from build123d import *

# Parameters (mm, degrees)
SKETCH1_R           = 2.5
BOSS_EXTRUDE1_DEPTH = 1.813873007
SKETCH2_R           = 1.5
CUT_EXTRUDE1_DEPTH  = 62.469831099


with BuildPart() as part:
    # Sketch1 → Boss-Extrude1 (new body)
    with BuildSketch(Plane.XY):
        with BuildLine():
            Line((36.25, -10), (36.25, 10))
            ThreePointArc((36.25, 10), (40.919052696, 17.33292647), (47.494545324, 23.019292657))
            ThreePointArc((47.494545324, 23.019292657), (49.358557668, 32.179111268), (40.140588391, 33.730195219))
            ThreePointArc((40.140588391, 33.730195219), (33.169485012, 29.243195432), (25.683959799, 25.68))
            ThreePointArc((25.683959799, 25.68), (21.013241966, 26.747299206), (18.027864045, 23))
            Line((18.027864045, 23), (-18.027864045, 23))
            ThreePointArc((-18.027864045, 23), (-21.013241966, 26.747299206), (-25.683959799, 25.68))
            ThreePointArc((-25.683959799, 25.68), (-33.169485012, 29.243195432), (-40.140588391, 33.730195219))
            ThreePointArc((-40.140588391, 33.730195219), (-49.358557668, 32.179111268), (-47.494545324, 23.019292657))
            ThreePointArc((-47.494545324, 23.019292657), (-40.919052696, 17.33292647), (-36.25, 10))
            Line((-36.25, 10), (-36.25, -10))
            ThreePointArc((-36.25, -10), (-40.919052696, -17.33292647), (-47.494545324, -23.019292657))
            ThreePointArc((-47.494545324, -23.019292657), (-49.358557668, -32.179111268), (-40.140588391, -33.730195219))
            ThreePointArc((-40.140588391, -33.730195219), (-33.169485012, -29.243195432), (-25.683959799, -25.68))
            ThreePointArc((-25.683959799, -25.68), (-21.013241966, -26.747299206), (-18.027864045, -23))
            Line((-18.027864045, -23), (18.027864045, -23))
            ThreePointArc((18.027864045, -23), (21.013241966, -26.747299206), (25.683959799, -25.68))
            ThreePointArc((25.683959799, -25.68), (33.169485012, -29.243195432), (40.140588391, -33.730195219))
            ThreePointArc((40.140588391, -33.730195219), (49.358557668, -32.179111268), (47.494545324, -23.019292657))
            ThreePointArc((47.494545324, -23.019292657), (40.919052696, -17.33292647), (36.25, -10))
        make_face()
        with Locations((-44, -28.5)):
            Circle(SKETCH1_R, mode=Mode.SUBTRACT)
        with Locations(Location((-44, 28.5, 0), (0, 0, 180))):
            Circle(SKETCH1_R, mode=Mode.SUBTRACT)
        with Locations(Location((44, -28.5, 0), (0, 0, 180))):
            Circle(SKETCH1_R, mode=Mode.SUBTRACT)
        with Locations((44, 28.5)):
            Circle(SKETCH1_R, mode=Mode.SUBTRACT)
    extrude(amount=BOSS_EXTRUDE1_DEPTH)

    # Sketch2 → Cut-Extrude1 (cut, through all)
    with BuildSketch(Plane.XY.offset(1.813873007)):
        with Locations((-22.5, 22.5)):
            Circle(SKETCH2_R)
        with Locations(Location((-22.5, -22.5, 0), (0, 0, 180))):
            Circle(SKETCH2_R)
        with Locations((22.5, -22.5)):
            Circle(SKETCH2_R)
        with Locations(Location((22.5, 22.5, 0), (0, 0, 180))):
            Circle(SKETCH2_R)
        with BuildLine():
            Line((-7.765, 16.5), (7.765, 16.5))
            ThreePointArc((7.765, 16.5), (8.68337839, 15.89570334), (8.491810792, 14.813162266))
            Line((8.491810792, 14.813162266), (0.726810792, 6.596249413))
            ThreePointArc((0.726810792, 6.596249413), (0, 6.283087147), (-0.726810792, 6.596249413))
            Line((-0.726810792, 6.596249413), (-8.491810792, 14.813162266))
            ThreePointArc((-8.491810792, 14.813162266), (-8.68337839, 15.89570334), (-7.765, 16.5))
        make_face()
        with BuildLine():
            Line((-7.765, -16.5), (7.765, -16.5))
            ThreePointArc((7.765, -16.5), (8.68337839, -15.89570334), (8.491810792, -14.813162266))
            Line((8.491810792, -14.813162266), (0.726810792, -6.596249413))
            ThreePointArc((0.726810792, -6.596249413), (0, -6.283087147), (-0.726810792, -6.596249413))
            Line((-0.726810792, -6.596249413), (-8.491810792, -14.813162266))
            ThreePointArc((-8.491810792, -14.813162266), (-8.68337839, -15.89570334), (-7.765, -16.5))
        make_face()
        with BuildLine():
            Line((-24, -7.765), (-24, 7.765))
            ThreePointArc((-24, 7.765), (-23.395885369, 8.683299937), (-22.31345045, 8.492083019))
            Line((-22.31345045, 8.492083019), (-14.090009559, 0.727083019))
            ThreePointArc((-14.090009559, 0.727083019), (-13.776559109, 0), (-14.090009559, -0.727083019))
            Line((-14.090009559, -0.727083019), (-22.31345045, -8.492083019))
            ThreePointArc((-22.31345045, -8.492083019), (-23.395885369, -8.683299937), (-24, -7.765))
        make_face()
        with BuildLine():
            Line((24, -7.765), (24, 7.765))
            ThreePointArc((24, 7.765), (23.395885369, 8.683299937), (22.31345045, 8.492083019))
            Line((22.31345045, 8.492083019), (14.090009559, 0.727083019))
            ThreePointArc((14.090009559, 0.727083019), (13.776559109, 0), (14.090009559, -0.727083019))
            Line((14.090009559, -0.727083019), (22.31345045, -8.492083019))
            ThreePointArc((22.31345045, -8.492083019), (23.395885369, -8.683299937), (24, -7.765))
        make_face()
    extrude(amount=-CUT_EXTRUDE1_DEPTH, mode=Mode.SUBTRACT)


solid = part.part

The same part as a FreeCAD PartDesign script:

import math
import FreeCAD as App
import Part
import Sketcher

V = App.Vector
Q = App.Units.Quantity

doc = App.newDocument("Part")
body = doc.addObject("PartDesign::Body", "Body")

sketch1 = doc.addObject("Sketcher::SketchObject", "Sketch")
body.addObject(sketch1)
sketch1.AttachmentSupport = (doc.XY_Plane, [""])
sketch1.MapMode = "FlatFace"
sketch1.addGeometry([
    Part.LineSegment(V(36.2, -10, 0), V(36.2, 10, 0)),
    Part.ArcOfCircle(Part.Circle(V(63.6, -2.3, 0), V(0, 0, 1), 30), math.radians(123), math.radians(156)),
    Part.ArcOfCircle(Part.Circle(V(44, 28.5, 0), V(0, 0, 1), 6.5), math.radians(-57), math.radians(126)),
    Part.ArcOfCircle(Part.Circle(V(1.5, 86, 0), V(0, 0, 1), 65), math.radians(-68.2), math.radians(-53.58)),
    Part.ArcOfCircle(Part.Circle(V(22.5, 22.5, 0), V(0, 0, 1), 4.5), math.radians(45), math.radians(174)),
    Part.LineSegment(V(18, 23, 0), V(-18, 23, 0)),
    Part.ArcOfCircle(Part.Circle(V(-22.5, 22.5, 0), V(0, 0, 1), 4.5), math.radians(6), math.radians(135)),
    Part.ArcOfCircle(Part.Circle(V(-1.5, 86, 0), V(0, 0, 1), 65), math.radians(-126.42), math.radians(-111.8)),
    Part.ArcOfCircle(Part.Circle(V(-44, 28.5, 0), V(0, 0, 1), 6.5), math.radians(54), math.radians(237)),
    Part.ArcOfCircle(Part.Circle(V(-63.6, -2.3, 0), V(0, 0, 1), 30), math.radians(24), math.radians(57)),
    Part.LineSegment(V(-36.2, 10, 0), V(-36.2, -10, 0)),
    Part.ArcOfCircle(Part.Circle(V(-63.6, 2.3, 0), V(0, 0, 1), 30), math.radians(-57), math.radians(-24)),
    Part.ArcOfCircle(Part.Circle(V(-44, -28.5, 0), V(0, 0, 1), 6.5), math.radians(123), math.radians(306)),
    Part.ArcOfCircle(Part.Circle(V(-1.5, -86, 0), V(0, 0, 1), 65), math.radians(111.8), math.radians(126.42)),
    Part.ArcOfCircle(Part.Circle(V(-22.5, -22.5, 0), V(0, 0, 1), 4.5), math.radians(-135), math.radians(-6)),
    Part.LineSegment(V(-18, -23, 0), V(18, -23, 0)),
    Part.ArcOfCircle(Part.Circle(V(22.5, -22.5, 0), V(0, 0, 1), 4.5), math.radians(-174), math.radians(-45)),
    Part.ArcOfCircle(Part.Circle(V(1.5, -86, 0), V(0, 0, 1), 65), math.radians(53.58), math.radians(68.2)),
    Part.ArcOfCircle(Part.Circle(V(44, -28.5, 0), V(0, 0, 1), 6.5), math.radians(-126), math.radians(57)),
    Part.ArcOfCircle(Part.Circle(V(63.6, 2.3, 0), V(0, 0, 1), 30), math.radians(-156), math.radians(-123)),
    Part.Circle(V(-44, -28.5, 0), V(0, 0, 1), 2.5),
    Part.Circle(V(44, -28.5, 0), V(0, 0, 1), 2.5),
    Part.Circle(V(-44, 28.5, 0), V(0, 0, 1), 2.5),
    Part.Circle(V(44, 28.5, 0), V(0, 0, 1), 2.5),
], False)
sketch1.addConstraint([
    Sketcher.Constraint("Coincident", 0, 2, 1, 2),
    Sketcher.Constraint("Tangent", 1, 1, 2, 1),
    Sketcher.Constraint("Tangent", 2, 2, 3, 2),
    Sketcher.Constraint("Coincident", 3, 1, 4, 1),
    Sketcher.Constraint("Coincident", 4, 2, 5, 1),
    Sketcher.Constraint("Coincident", 5, 2, 6, 1),
    Sketcher.Constraint("Coincident", 6, 2, 7, 2),
    Sketcher.Constraint("Tangent", 7, 1, 8, 1),
    Sketcher.Constraint("Tangent", 8, 2, 9, 2),
    Sketcher.Constraint("Coincident", 9, 1, 10, 1),
    Sketcher.Constraint("Coincident", 10, 2, 11, 2),
    Sketcher.Constraint("Tangent", 11, 1, 12, 1),
    Sketcher.Constraint("Tangent", 12, 2, 13, 2),
    Sketcher.Constraint("Coincident", 13, 1, 14, 1),
    Sketcher.Constraint("Coincident", 14, 2, 15, 1),
    Sketcher.Constraint("Coincident", 15, 2, 16, 1),
    Sketcher.Constraint("Coincident", 16, 2, 17, 2),
    Sketcher.Constraint("Tangent", 17, 1, 18, 1),
    Sketcher.Constraint("Tangent", 18, 2, 19, 2),
    Sketcher.Constraint("Coincident", 19, 1, 0, 1),
    Sketcher.Constraint("Vertical", 0),
    Sketcher.Constraint("Horizontal", 5),
    Sketcher.Constraint("Vertical", 10),
    Sketcher.Constraint("Horizontal", 15),
    Sketcher.Constraint("Coincident", 20, 3, 12, 3),
    Sketcher.Constraint("Coincident", 21, 3, 18, 3),
    Sketcher.Constraint("Coincident", 22, 3, 8, 3),
    Sketcher.Constraint("Coincident", 23, 3, 2, 3),
    Sketcher.Constraint("Equal", 4, 6),
    Sketcher.Constraint("Equal", 3, 7),
    Sketcher.Constraint("Equal", 2, 8),
    Sketcher.Constraint("Equal", 1, 9),
    Sketcher.Constraint("Equal", 9, 11),
    Sketcher.Constraint("Equal", 8, 12),
    Sketcher.Constraint("Equal", 7, 13),
    Sketcher.Constraint("Equal", 6, 14),
    Sketcher.Constraint("Equal", 14, 16),
    Sketcher.Constraint("Equal", 13, 17),
    Sketcher.Constraint("Equal", 12, 18),
    Sketcher.Constraint("Equal", 11, 19),
    Sketcher.Constraint("Equal", 20, 21),
    Sketcher.Constraint("Equal", 21, 22),
    Sketcher.Constraint("Equal", 22, 23),
    Sketcher.Constraint("Symmetric", 1, 3, 11, 3, -1, 1),
    Sketcher.Constraint("Symmetric", 3, 3, 13, 3, -1, 1),
    Sketcher.Constraint("Symmetric", 4, 3, 14, 3, -1, 1),
    Sketcher.Constraint("Symmetric", 6, 3, 16, 3, -1, 1),
    Sketcher.Constraint("Symmetric", 7, 3, 17, 3, -1, 1),
    Sketcher.Constraint("Symmetric", 9, 3, 19, 3, -1, 1),
    Sketcher.Constraint("Symmetric", 4, 3, 6, 3, -2),
    Sketcher.Constraint("Symmetric", 3, 3, 7, 3, -2),
    Sketcher.Constraint("Symmetric", 1, 3, 9, 3, -2),
    Sketcher.Constraint("Horizontal", 0, 2, 9, 1),
    Sketcher.Constraint("Vertical", 5, 2, 14, 2),
    Sketcher.Constraint("Diameter", 20, Q("5 mm")),
    Sketcher.Constraint("Radius", 1, Q("30 mm")),
    Sketcher.Constraint("Radius", 3, Q("65 mm")),
    Sketcher.Constraint("Radius", 2, Q("6.5 mm")),
    Sketcher.Constraint("Radius", 4, Q("4.5 mm")),
    Sketcher.Constraint("DistanceY", 0, 1, 0, 2, Q("20 mm")),
    Sketcher.Constraint("DistanceX", -1, 1, 2, 3, Q("44 mm")),
    Sketcher.Constraint("DistanceY", -1, 1, 4, 2, Q("23 mm")),
    Sketcher.Constraint("DistanceY", 4, 3, 2, 3, Q("6 mm")),
    Sketcher.Constraint("DistanceX", 6, 3, 4, 3, Q("45 mm")),
    Sketcher.Constraint("DistanceY", 12, 3, 6, 3, Q("51 mm")),
    Sketcher.Constraint("DistanceX", -1, 1, 0, 2, Q("36.25 mm")),
    Sketcher.Constraint("DistanceY", -1, 1, 3, 1, Q("25.68 mm")),
])
pad1 = doc.addObject("PartDesign::Pad", "Pad")
body.addObject(pad1)
pad1.Profile = sketch1
pad1.Length = 1.813873

sketch2 = doc.addObject("Sketcher::SketchObject", "Sketch001")
body.addObject(sketch2)
sketch2.AttachmentSupport = (doc.XY_Plane, [""])
sketch2.MapMode = "FlatFace"
sketch2.AttachmentOffset = App.Placement(V(0, 0, 1.813873), App.Rotation())
sketch2.addGeometry([
    Part.Circle(V(-22.5, 22.5, 0), V(0, 0, 1), 1.5),
    Part.Circle(V(-22.5, -22.5, 0), V(0, 0, 1), 1.5),
    Part.Circle(V(22.5, -22.5, 0), V(0, 0, 1), 1.5),
    Part.Circle(V(22.5, 22.5, 0), V(0, 0, 1), 1.5),
    Part.LineSegment(V(7.8, 16.5, 0), V(-7.8, 16.5, 0)),
    Part.ArcOfCircle(Part.Circle(V(-7.8, 15.5, 0), V(0, 0, 1), 1), math.radians(90), math.radians(223)),
    Part.LineSegment(V(-8.5, 14.8, 0), V(-0.7, 6.6, 0)),
    Part.ArcOfCircle(Part.Circle(V(0, 7.3, 0), V(0, 0, 1), 1), math.radians(-137), math.radians(-43)),
    Part.LineSegment(V(0.7, 6.6, 0), V(8.5, 14.8, 0)),
    Part.ArcOfCircle(Part.Circle(V(7.8, 15.5, 0), V(0, 0, 1), 1), math.radians(-43), math.radians(90)),
    Part.LineSegment(V(-7.8, -16.5, 0), V(7.8, -16.5, 0)),
    Part.ArcOfCircle(Part.Circle(V(7.8, -15.5, 0), V(0, 0, 1), 1), math.radians(-90), math.radians(43)),
    Part.LineSegment(V(8.5, -14.8, 0), V(0.7, -6.6, 0)),
    Part.ArcOfCircle(Part.Circle(V(0, -7.3, 0), V(0, 0, 1), 1), math.radians(43), math.radians(137)),
    Part.LineSegment(V(-0.7, -6.6, 0), V(-8.5, -14.8, 0)),
    Part.ArcOfCircle(Part.Circle(V(-7.8, -15.5, 0), V(0, 0, 1), 1), math.radians(137), math.radians(270)),
    Part.LineSegment(V(-24, 7.8, 0), V(-24, -7.8, 0)),
    Part.ArcOfCircle(Part.Circle(V(-23, -7.8, 0), V(0, 0, 1), 1), math.radians(-180), math.radians(-47)),
    Part.LineSegment(V(-22.3, -8.5, 0), V(-14.1, -0.7, 0)),
    Part.ArcOfCircle(Part.Circle(V(-14.8, 0, 0), V(0, 0, 1), 1), math.radians(-47), math.radians(47)),
    Part.LineSegment(V(-14.1, 0.7, 0), V(-22.3, 8.5, 0)),
    Part.ArcOfCircle(Part.Circle(V(-23, 7.8, 0), V(0, 0, 1), 1), math.radians(47), math.radians(180)),
    Part.LineSegment(V(24, -7.8, 0), V(24, 7.8, 0)),
    Part.ArcOfCircle(Part.Circle(V(23, 7.8, 0), V(0, 0, 1), 1), math.radians(0), math.radians(133)),
    Part.LineSegment(V(22.3, 8.5, 0), V(14.1, 0.7, 0)),
    Part.ArcOfCircle(Part.Circle(V(14.8, 0, 0), V(0, 0, 1), 1), math.radians(133), math.radians(227)),
    Part.LineSegment(V(14.1, -0.7, 0), V(22.3, -8.5, 0)),
    Part.ArcOfCircle(Part.Circle(V(23, -7.8, 0), V(0, 0, 1), 1), math.radians(-133), math.radians(0)),
], False)
sketch2.addConstraint([
    Sketcher.Constraint("Tangent", 4, 2, 5, 1),
    Sketcher.Constraint("Tangent", 5, 2, 6, 1),
    Sketcher.Constraint("Tangent", 6, 2, 7, 1),
    Sketcher.Constraint("Tangent", 7, 2, 8, 1),
    Sketcher.Constraint("Tangent", 8, 2, 9, 1),
    Sketcher.Constraint("Tangent", 9, 2, 4, 1),
    Sketcher.Constraint("Tangent", 10, 2, 11, 1),
    Sketcher.Constraint("Tangent", 11, 2, 12, 1),
    Sketcher.Constraint("Tangent", 12, 2, 13, 1),
    Sketcher.Constraint("Tangent", 13, 2, 14, 1),
    Sketcher.Constraint("Tangent", 14, 2, 15, 1),
    Sketcher.Constraint("Tangent", 15, 2, 10, 1),
    Sketcher.Constraint("Tangent", 16, 2, 17, 1),
    Sketcher.Constraint("Tangent", 17, 2, 18, 1),
    Sketcher.Constraint("Tangent", 18, 2, 19, 1),
    Sketcher.Constraint("Tangent", 19, 2, 20, 1),
    Sketcher.Constraint("Tangent", 20, 2, 21, 1),
    Sketcher.Constraint("Tangent", 21, 2, 16, 1),
    Sketcher.Constraint("Tangent", 22, 2, 23, 1),
    Sketcher.Constraint("Tangent", 23, 2, 24, 1),
    Sketcher.Constraint("Tangent", 24, 2, 25, 1),
    Sketcher.Constraint("Tangent", 25, 2, 26, 1),
    Sketcher.Constraint("Tangent", 26, 2, 27, 1),
    Sketcher.Constraint("Tangent", 27, 2, 22, 1),
    Sketcher.Constraint("Horizontal", 4),
    Sketcher.Constraint("Horizontal", 10),
    Sketcher.Constraint("Vertical", 16),
    Sketcher.Constraint("Vertical", 22),
    Sketcher.Constraint("Equal", 0, 1),
    Sketcher.Constraint("Equal", 1, 2),
    Sketcher.Constraint("Equal", 2, 3),
    Sketcher.Constraint("Equal", 5, 7),
    Sketcher.Constraint("Equal", 7, 9),
    Sketcher.Constraint("Equal", 9, 11),
    Sketcher.Constraint("Equal", 11, 13),
    Sketcher.Constraint("Equal", 13, 15),
    Sketcher.Constraint("Equal", 15, 17),
    Sketcher.Constraint("Equal", 17, 19),
    Sketcher.Constraint("Equal", 19, 21),
    Sketcher.Constraint("Equal", 21, 23),
    Sketcher.Constraint("Equal", 23, 25),
    Sketcher.Constraint("Equal", 25, 27),
    Sketcher.Constraint("Symmetric", 0, 3, 2, 3, -1, 1),
    Sketcher.Constraint("Symmetric", 1, 3, 3, 3, -1, 1),
    Sketcher.Constraint("Symmetric", 5, 3, 11, 3, -1, 1),
    Sketcher.Constraint("Symmetric", 7, 3, 13, 3, -1, 1),
    Sketcher.Constraint("Symmetric", 17, 3, 23, 3, -1, 1),
    Sketcher.Constraint("Symmetric", 19, 3, 25, 3, -1, 1),
    Sketcher.Constraint("Symmetric", 1, 3, 2, 3, -2),
    Sketcher.Constraint("Symmetric", 6, 2, 7, 2, -2),
    Sketcher.Constraint("Symmetric", 20, 2, 23, 2, -2),
    Sketcher.Constraint("Parallel", 8, 14),
    Sketcher.Constraint("Parallel", 20, 26),
    Sketcher.Constraint("Equal", 10, 16),
    Sketcher.Constraint("Diameter", 0, Q("3 mm")),
    Sketcher.Constraint("Radius", 5, Q("1 mm")),
    Sketcher.Constraint("DistanceX", 17, 3, -1, 1, Q("23 mm")),
    Sketcher.Constraint("DistanceY", 1, 3, 0, 3, Q("45 mm")),
    Sketcher.Constraint("DistanceX", 1, 3, 2, 3, Q("45 mm")),
    Sketcher.Constraint("DistanceY", 5, 3, 0, 3, Q("7 mm")),
    Sketcher.Constraint("DistanceX", 4, 2, 4, 1, Q("15.53 mm")),
    Sketcher.Constraint("Distance", 18, Q("11.310181 mm")),
    Sketcher.Constraint("DistanceX", 5, 2, -1, 1, Q("8.491811 mm")),
])
pocket1 = doc.addObject("PartDesign::Pocket", "Pocket")
body.addObject(pocket1)
pocket1.Profile = sketch2
pocket1.Type = "ThroughAll"

doc.recompute()
